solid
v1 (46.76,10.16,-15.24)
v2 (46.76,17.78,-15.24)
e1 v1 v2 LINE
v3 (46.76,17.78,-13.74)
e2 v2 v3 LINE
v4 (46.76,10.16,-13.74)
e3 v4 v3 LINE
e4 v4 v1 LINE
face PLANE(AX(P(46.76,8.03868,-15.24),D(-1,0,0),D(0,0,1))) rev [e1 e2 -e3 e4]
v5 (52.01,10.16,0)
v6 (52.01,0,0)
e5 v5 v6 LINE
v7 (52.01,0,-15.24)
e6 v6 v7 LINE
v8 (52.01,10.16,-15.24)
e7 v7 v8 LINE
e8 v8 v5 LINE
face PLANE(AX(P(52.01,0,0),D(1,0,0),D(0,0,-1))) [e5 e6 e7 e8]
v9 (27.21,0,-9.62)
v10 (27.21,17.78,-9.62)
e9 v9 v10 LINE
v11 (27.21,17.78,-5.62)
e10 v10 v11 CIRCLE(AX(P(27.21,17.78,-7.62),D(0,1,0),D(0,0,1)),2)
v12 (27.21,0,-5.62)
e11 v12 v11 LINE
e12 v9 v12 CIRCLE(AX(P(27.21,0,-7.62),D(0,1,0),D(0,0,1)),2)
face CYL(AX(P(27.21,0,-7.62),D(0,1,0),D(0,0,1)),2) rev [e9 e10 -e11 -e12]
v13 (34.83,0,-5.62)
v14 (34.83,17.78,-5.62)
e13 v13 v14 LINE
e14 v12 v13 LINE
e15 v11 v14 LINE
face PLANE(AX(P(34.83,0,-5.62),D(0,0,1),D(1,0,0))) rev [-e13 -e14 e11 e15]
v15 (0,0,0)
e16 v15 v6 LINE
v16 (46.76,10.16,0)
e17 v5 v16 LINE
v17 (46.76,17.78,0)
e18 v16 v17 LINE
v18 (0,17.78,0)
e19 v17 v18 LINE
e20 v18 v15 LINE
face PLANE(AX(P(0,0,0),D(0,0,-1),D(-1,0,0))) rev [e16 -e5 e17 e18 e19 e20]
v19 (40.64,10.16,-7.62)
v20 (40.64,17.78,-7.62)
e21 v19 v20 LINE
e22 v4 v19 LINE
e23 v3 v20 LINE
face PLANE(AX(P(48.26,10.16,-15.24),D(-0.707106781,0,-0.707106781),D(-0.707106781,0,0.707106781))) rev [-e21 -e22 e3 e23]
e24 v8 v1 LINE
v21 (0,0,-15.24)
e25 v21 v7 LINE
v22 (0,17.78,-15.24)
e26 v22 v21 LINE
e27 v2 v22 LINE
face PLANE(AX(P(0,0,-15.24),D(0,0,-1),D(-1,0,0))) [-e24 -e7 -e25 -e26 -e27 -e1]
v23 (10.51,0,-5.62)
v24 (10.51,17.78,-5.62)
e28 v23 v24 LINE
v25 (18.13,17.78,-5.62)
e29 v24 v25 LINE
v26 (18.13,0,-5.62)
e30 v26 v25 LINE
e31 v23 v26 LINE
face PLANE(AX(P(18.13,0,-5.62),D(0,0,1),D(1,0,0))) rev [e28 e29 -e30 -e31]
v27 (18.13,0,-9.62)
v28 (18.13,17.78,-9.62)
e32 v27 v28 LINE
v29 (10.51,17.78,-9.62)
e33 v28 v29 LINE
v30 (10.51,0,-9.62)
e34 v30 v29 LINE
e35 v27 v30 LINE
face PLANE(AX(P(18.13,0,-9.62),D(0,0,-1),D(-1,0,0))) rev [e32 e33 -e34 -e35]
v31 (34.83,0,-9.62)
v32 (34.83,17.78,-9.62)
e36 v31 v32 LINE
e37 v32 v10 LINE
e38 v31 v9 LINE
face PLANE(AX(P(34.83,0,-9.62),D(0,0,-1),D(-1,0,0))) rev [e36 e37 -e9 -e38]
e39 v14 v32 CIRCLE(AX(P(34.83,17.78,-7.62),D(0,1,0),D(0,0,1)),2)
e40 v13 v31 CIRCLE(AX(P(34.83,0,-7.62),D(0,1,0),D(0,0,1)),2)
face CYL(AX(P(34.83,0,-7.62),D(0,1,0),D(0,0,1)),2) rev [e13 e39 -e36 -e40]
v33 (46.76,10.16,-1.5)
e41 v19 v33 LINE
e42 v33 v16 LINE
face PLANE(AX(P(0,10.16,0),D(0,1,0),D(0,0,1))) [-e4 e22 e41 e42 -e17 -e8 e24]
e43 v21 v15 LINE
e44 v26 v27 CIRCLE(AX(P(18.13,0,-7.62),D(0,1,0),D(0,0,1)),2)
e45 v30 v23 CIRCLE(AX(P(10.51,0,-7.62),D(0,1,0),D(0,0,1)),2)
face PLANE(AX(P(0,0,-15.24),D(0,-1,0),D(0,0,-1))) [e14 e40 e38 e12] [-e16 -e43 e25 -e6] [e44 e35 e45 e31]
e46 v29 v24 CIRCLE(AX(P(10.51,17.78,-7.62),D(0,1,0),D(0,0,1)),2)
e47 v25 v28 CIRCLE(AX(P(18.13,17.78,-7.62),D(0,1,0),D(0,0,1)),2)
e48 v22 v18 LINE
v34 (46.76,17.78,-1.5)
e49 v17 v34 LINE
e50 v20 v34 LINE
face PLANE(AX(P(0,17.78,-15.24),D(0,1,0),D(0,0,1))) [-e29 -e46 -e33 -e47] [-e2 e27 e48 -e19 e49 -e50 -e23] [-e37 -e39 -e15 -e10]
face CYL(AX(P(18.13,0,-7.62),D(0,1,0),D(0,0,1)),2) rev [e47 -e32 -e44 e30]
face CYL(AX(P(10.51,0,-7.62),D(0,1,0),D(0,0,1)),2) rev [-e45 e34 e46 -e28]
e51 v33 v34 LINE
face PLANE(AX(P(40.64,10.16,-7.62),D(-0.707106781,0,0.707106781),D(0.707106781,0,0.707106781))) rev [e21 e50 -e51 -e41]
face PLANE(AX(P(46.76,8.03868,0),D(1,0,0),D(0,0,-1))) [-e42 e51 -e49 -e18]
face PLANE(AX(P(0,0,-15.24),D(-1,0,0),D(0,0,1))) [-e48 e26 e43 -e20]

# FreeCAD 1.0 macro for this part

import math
import FreeCAD as App
import Part
import Sketcher

V = App.Vector
Q = App.Units.Quantity


def add_polygon(sketch, points):
    """Adds a closed chain of lines whose ends are joined by coincident constraints."""
    first, n = sketch.GeometryCount, len(points)
    for a, b in zip(points, points[1:] + points[:1]):
        sketch.addGeometry(Part.LineSegment(App.Vector(*a, 0), App.Vector(*b, 0)), False)
    for i in range(n):
        sketch.addConstraint(Sketcher.Constraint("Coincident", first + i, 2, first + (i + 1) % n, 1))

doc = App.newDocument("Part")
body = doc.addObject("PartDesign::Body", "Body")

sketch1 = doc.addObject("Sketcher::SketchObject", "Sketch")
body.addObject(sketch1)
sketch1.AttachmentSupport = (doc.XY_Plane, [""])
sketch1.MapMode = "FlatFace"
add_polygon(sketch1, [(0, 18), (0, 0), (48, 0), (48, 18)])
sketch1.addConstraint(Sketcher.Constraint("Vertical", 0))
sketch1.addConstraint(Sketcher.Constraint("Horizontal", 1))
sketch1.addConstraint(Sketcher.Constraint("Vertical", 2))
sketch1.addConstraint(Sketcher.Constraint("Horizontal", 3))
sketch1.addConstraint(Sketcher.Constraint("Coincident", 0, 2, -1, 1))
sketch1.addConstraint(Sketcher.Constraint("DistanceX", 1, 1, 1, 2, Q("1.9 in")))
sketch1.addConstraint(Sketcher.Constraint("DistanceY", 0, 2, 0, 1, Q("0.7 in")))
pad1 = doc.addObject("PartDesign::Pad", "Pad")
body.addObject(pad1)
pad1.Profile = sketch1
pad1.Length = Q("0.6 in")
pad1.Reversed = True

sketch2 = doc.addObject("Sketcher::SketchObject", "Sketch001")
body.addObject(sketch2)
sketch2.AttachmentSupport = (doc.XZ_Plane, [""])
sketch2.MapMode = "FlatFace"
sketch2.AttachmentOffset = App.Placement(V(0, 0, -0.7 * 25.4), App.Rotation())
add_polygon(sketch2, [(48, -15), (41, -8), (48, 0)])
sketch2.addConstraint(Sketcher.Constraint("Vertical", 2))
sketch2.addConstraint(Sketcher.Constraint("PointOnObject", 1, 2, -1))
sketch2.addConstraint(Sketcher.Constraint("Perpendicular", 0, 1))
sketch2.addConstraint(Sketcher.Constraint("Equal", 0, 1))
sketch2.addConstraint(Sketcher.Constraint("DistanceY", 2, 2, 2, 1, Q("0.6 in")))
sketch2.addConstraint(Sketcher.Constraint("DistanceX", -1, 1, 0, 2, Q("1.6 in")))
pocket1 = doc.addObject("PartDesign::Pocket", "Pocket")
body.addObject(pocket1)
pocket1.Profile = sketch2
pocket1.Length = Q("0.3 in")
pocket1.Reversed = True

sketch3 = doc.addObject("Sketcher::SketchObject", "Sketch002")
body.addObject(sketch3)
sketch3.AttachmentSupport = (doc.XZ_Plane, [""])
sketch3.MapMode = "FlatFace"
sketch3.AttachmentOffset = App.Placement(V(0, 0, -0.7 * 25.4), App.Rotation())
sketch3.addGeometry(Part.LineSegment(V(27.2, -5.6, 0), V(34.8, -5.6, 0)), False)
sketch3.addGeometry(Part.ArcOfCircle(Part.Circle(V(34.8, -7.6, 0), V(0, 0, 1), 2), math.radians(-90), math.radians(90)), False)
sketch3.addGeometry(Part.LineSegment(V(34.8, -9.6, 0), V(27.2, -9.6, 0)), False)
sketch3.addGeometry(Part.ArcOfCircle(Part.Circle(V(27.2, -7.6, 0), V(0, 0, 1), 2), math.radians(90), math.radians(270)), False)
sketch3.addGeometry(Part.LineSegment(V(10.5, -5.6, 0), V(18.1, -5.6, 0)), False)
sketch3.addGeometry(Part.ArcOfCircle(Part.Circle(V(18.1, -7.6, 0), V(0, 0, 1), 2), math.radians(-90), math.radians(90)), False)
sketch3.addGeometry(Part.LineSegment(V(18.1, -9.6, 0), V(10.5, -9.6, 0)), False)
sketch3.addGeometry(Part.ArcOfCircle(Part.Circle(V(10.5, -7.6, 0), V(0, 0, 1), 2), math.radians(90), math.radians(270)), False)
sketch3.addConstraint(Sketcher.Constraint("Tangent", 0, 2, 1, 2))
sketch3.addConstraint(Sketcher.Constraint("Tangent", 1, 1, 2, 1))
sketch3.addConstraint(Sketcher.Constraint("Tangent", 2, 2, 3, 2))
sketch3.addConstraint(Sketcher.Constraint("Tangent", 3, 1, 0, 1))
sketch3.addConstraint(Sketcher.Constraint("Tangent", 4, 2, 5, 2))
sketch3.addConstraint(Sketcher.Constraint("Tangent", 5, 1, 6, 1))
sketch3.addConstraint(Sketcher.Constraint("Tangent", 6, 2, 7, 2))
sketch3.addConstraint(Sketcher.Constraint("Tangent", 7, 1, 4, 1))
sketch3.addConstraint(Sketcher.Constraint("Horizontal", 0))
sketch3.addConstraint(Sketcher.Constraint("Horizontal", 2))
sketch3.addConstraint(Sketcher.Constraint("Horizontal", 4))
sketch3.addConstraint(Sketcher.Constraint("Horizontal", 6))
sketch3.addConstraint(Sketcher.Constraint("Equal", 3, 5))
sketch3.addConstraint(Sketcher.Constraint("Horizontal", 3, 3, 5, 3))
sketch3.addConstraint(Sketcher.Constraint("Equal", 2, 4))
sketch3.addConstraint(Sketcher.Constraint("DistanceX", 0, 1, 0, 2, Q("0.3 in")))
sketch3.addConstraint(Sketcher.Constraint("DistanceY", 1, 3, -1, 1, Q("0.3 in")))
sketch3.addConstraint(Sketcher.Constraint("Radius", 1, 2.0))
sketch3.addConstraint(Sketcher.Constraint("DistanceX", -1, 1, 1, 3, 34.83))
sketch3.addConstraint(Sketcher.Constraint("DistanceX", -1, 1, 5, 3, 18.13))
pocket2 = doc.addObject("PartDesign::Pocket", "Pocket001")
body.addObject(pocket2)
pocket2.Profile = sketch3
pocket2.Type = "ThroughAll"
pocket2.Reversed = True

sketch4 = doc.addObject("Sketcher::SketchObject", "Sketch003")
body.addObject(sketch4)
sketch4.AttachmentSupport = (doc.YZ_Plane, [""])
sketch4.MapMode = "FlatFace"
sketch4.AttachmentOffset = App.Placement(V(0, 0, 1.9 * 25.4), App.Rotation())
add_polygon(sketch4, [(10, 0), (0, 0), (0, -15), (10, -15)])
sketch4.addConstraint(Sketcher.Constraint("Horizontal", 0))
sketch4.addConstraint(Sketcher.Constraint("Vertical", 1))
sketch4.addConstraint(Sketcher.Constraint("Horizontal", 2))
sketch4.addConstraint(Sketcher.Constraint("Vertical", 3))
sketch4.addConstraint(Sketcher.Constraint("Coincident", 0, 2, -1, 1))
sketch4.addConstraint(Sketcher.Constraint("DistanceX", 0, 2, 0, 1, Q("0.4 in")))
sketch4.addConstraint(Sketcher.Constraint("DistanceY", 1, 2, 1, 1, Q("0.6 in")))
pad2 = doc.addObject("PartDesign::Pad", "Pad001")
body.addObject(pad2)
pad2.Profile = sketch4
pad2.Length = 3.75

sketch5 = doc.addObject("Sketcher::SketchObject", "Sketch004")
body.addObject(sketch5)
sketch5.AttachmentSupport = (doc.XZ_Plane, [""])
sketch5.MapMode = "FlatFace"
sketch5.AttachmentOffset = App.Placement(V(0, 0, -0.7 * 25.4), App.Rotation())
add_polygon(sketch5, [(46.8, 0), (48.3, 0), (46.8, -1.5)])
sketch5.addConstraint(Sketcher.Constraint("Horizontal", 0))
sketch5.addConstraint(Sketcher.Constraint("Vertical", 2))
sketch5.addConstraint(Sketcher.Constraint("PointOnObject", 0, 2, -1))
sketch5.addConstraint(Sketcher.Constraint("Equal", 0, 2))
sketch5.addConstraint(Sketcher.Constraint("DistanceX", -1, 1, 0, 2, Q("1.9 in")))
sketch5.addConstraint(Sketcher.Constraint("DistanceX", 0, 1, 0, 2, 1.5))
pocket3 = doc.addObject("PartDesign::Pocket", "Pocket002")
body.addObject(pocket3)
pocket3.Profile = sketch5
pocket3.Length = Q("0.3 in")
pocket3.Reversed = True

sketch6 = doc.addObject("Sketcher::SketchObject", "Sketch005")
body.addObject(sketch6)
sketch6.AttachmentSupport = (doc.XZ_Plane, [""])
sketch6.MapMode = "FlatFace"
sketch6.AttachmentOffset = App.Placement(V(0, 0, -0.7 * 25.4), App.Rotation())
add_polygon(sketch6, [(48.3, -15.2), (46.8, -15.2), (46.8, -13.7)])
sketch6.addConstraint(Sketcher.Constraint("Horizontal", 0))
sketch6.addConstraint(Sketcher.Constraint("Vertical", 1))
sketch6.addConstraint(Sketcher.Constraint("Equal", 0, 1))
sketch6.addConstraint(Sketcher.Constraint("DistanceY", 0, 2, -1, 1, Q("0.6 in")))
sketch6.addConstraint(Sketcher.Constraint("DistanceX", -1, 1, 2, 2, Q("1.9 in")))
sketch6.addConstraint(Sketcher.Constraint("DistanceX", 0, 2, 0, 1, 1.5))
pocket4 = doc.addObject("PartDesign::Pocket", "Pocket003")
body.addObject(pocket4)
pocket4.Profile = sketch6
pocket4.Length = Q("0.3 in")
pocket4.Reversed = True

doc.recompute()
